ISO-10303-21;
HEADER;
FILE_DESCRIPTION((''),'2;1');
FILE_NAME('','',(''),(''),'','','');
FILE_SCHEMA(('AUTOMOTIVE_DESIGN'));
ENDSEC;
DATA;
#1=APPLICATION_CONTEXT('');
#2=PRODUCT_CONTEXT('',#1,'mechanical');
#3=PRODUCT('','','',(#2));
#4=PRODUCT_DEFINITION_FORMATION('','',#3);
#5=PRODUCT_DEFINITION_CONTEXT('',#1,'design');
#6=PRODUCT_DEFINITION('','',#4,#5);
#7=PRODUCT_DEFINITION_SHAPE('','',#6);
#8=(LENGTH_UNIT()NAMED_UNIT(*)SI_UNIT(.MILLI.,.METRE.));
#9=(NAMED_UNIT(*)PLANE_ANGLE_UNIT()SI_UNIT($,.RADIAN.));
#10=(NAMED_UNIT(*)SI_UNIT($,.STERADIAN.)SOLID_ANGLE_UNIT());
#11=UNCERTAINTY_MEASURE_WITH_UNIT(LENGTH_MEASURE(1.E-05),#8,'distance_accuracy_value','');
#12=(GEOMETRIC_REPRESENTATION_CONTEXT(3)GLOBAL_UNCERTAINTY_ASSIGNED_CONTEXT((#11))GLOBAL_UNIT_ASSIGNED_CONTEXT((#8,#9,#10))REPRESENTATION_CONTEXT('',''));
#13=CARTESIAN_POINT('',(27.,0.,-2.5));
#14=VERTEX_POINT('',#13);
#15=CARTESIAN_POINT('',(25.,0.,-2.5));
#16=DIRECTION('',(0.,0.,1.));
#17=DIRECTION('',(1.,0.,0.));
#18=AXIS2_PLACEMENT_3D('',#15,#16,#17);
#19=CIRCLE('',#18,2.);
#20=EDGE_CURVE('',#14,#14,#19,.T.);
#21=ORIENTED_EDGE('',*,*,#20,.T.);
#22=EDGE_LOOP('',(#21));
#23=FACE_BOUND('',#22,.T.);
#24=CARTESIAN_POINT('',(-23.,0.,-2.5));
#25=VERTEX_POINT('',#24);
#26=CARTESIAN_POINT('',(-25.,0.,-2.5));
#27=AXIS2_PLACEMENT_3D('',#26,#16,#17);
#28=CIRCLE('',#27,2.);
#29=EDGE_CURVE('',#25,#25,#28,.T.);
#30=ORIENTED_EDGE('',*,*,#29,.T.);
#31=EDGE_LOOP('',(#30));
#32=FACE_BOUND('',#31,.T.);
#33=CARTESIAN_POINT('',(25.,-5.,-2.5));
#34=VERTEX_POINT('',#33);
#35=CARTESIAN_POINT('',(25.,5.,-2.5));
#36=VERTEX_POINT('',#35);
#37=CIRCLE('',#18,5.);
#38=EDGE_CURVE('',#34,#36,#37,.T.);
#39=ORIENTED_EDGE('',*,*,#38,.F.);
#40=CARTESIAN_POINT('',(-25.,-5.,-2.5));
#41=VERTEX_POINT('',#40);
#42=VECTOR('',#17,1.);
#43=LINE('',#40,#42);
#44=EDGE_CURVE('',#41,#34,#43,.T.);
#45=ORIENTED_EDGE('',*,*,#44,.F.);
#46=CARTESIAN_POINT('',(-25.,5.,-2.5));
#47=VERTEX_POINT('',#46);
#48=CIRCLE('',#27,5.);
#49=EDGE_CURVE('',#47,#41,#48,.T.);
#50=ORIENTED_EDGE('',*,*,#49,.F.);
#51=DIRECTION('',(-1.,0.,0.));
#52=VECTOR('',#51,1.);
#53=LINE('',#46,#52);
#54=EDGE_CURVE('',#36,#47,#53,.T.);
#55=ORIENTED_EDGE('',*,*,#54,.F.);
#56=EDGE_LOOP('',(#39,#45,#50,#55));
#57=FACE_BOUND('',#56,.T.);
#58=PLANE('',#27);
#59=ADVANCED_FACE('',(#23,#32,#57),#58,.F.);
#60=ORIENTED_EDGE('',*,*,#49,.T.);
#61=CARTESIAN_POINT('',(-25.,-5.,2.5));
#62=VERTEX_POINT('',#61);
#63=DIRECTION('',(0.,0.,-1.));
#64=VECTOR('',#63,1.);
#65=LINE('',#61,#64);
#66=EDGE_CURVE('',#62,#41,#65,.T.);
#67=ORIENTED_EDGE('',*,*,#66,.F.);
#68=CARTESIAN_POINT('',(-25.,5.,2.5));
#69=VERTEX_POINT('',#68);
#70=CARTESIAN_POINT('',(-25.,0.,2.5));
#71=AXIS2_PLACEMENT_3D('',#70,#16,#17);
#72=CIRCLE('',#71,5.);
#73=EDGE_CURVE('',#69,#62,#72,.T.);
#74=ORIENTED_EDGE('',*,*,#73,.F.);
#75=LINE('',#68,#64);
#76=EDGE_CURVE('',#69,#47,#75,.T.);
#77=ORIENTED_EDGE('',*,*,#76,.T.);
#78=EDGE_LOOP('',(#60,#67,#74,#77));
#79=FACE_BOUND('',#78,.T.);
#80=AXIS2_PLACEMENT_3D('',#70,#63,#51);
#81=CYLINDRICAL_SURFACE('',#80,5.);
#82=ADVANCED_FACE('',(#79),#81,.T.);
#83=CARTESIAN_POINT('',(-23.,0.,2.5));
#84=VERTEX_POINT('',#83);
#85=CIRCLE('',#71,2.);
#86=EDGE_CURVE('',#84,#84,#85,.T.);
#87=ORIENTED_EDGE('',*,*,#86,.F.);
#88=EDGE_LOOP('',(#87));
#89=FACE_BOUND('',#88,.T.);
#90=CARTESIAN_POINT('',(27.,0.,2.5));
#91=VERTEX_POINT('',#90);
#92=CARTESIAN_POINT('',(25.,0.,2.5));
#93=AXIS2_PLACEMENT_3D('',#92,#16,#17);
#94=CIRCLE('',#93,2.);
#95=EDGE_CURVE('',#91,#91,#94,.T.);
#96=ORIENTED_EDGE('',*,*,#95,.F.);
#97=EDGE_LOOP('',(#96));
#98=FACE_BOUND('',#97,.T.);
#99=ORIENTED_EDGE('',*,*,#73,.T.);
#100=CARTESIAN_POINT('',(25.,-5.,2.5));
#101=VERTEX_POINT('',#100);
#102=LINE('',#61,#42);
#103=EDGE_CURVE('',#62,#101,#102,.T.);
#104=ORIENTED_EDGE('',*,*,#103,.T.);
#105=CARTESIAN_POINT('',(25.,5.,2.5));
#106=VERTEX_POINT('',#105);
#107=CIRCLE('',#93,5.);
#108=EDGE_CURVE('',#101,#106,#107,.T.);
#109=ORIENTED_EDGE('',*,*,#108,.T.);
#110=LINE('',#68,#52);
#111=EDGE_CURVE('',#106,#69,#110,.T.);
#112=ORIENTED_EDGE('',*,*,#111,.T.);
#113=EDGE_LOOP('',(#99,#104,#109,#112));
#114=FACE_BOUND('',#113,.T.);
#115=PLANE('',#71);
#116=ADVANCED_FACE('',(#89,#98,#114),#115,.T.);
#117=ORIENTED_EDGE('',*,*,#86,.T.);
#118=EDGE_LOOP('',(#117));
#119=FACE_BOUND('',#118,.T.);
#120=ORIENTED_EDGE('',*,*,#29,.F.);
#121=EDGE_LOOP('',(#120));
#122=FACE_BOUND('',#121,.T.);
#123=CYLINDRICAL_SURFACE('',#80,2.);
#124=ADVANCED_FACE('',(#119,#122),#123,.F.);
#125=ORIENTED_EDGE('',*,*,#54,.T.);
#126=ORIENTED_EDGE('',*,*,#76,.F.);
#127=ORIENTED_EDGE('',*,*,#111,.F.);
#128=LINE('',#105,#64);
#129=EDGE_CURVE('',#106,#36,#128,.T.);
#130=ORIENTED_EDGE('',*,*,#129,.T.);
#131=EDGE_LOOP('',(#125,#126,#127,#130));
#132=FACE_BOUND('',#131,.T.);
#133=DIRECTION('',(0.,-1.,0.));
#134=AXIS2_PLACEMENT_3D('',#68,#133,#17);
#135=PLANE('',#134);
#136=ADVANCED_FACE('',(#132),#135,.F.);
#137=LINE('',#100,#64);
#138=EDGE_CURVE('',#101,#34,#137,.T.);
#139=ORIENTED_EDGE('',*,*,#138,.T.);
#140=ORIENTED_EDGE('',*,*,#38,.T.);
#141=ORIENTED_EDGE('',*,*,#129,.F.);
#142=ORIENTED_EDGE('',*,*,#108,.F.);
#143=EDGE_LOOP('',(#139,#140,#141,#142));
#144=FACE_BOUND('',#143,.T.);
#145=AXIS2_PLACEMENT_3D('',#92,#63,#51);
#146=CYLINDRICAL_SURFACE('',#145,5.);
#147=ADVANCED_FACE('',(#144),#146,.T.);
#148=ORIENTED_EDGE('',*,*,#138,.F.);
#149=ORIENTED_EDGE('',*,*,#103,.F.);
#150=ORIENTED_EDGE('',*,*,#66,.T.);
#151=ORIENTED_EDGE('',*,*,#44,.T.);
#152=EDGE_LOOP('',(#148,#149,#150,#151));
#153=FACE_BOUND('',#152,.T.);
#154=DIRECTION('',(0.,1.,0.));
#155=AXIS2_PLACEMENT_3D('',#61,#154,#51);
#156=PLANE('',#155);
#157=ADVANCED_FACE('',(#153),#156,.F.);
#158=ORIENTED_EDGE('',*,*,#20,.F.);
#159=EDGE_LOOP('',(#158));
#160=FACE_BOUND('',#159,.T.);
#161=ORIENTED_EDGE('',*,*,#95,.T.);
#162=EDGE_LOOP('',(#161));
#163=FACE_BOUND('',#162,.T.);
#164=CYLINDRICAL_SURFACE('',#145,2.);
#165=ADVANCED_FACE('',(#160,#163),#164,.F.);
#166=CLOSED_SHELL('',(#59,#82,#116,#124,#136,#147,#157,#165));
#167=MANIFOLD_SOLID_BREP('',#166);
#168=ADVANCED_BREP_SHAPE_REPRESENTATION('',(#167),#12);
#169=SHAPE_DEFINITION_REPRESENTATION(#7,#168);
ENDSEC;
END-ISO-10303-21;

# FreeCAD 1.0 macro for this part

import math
import FreeCAD as App
import Part
import Sketcher

V = App.Vector
Q = App.Units.Quantity

doc = App.newDocument("Part")
body = doc.addObject("PartDesign::Body", "Body")

# Sketch on XY plane
sketch1 = body.newObject("Sketcher::SketchObject", "Sketch")
sketch1.AttachmentSupport = (doc.getObject("XY_Plane"), [""])
sketch1.MapMode = "FlatFace"
sketch1.addGeometry([
    Part.LineSegment(V(25, 5, 0), V(-25, 5, 0)),  # 0
    Part.ArcOfCircle(Part.Circle(V(-25, 0, 0), V(0, 0, 1), 5), math.radians(90), math.radians(270)),  # 1
    Part.LineSegment(V(-25, -5, 0), V(25, -5, 0)),  # 2
    Part.ArcOfCircle(Part.Circle(V(25, 0, 0), V(0, 0, 1), 5), math.radians(-90), math.radians(90)),  # 3
    Part.Circle(V(25, 0, 0), V(0, 0, 1), 2),  # 4
    Part.Circle(V(-25, 0, 0), V(0, 0, 1), 2),  # 5
], False)
sketch1.addConstraint([
    Sketcher.Constraint("Tangent", 0, 2, 1, 1),
    Sketcher.Constraint("Tangent", 1, 2, 2, 1),
    Sketcher.Constraint("Tangent", 2, 2, 3, 1),
    Sketcher.Constraint("Tangent", 3, 2, 0, 1),
    Sketcher.Constraint("Horizontal", 0),
    Sketcher.Constraint("Horizontal", 2),
    Sketcher.Constraint("Coincident", 4, 3, 3, 3),
    Sketcher.Constraint("Coincident", 5, 3, 1, 3),
    Sketcher.Constraint("Equal", 4, 5),
    Sketcher.Constraint("Symmetric", 1, 3, 3, 3, -1, 1),
    Sketcher.Constraint("Diameter", 4, Q("4 mm")),
    Sketcher.Constraint("Radius", 1, Q("5 mm")),
    Sketcher.Constraint("DistanceX", 0, 2, 0, 1, Q("50 mm")),
])
pad1 = body.newObject("PartDesign::Pad", "Pad")
pad1.Profile = sketch1
pad1.Length = 5
pad1.Midplane = True

doc.recompute()
